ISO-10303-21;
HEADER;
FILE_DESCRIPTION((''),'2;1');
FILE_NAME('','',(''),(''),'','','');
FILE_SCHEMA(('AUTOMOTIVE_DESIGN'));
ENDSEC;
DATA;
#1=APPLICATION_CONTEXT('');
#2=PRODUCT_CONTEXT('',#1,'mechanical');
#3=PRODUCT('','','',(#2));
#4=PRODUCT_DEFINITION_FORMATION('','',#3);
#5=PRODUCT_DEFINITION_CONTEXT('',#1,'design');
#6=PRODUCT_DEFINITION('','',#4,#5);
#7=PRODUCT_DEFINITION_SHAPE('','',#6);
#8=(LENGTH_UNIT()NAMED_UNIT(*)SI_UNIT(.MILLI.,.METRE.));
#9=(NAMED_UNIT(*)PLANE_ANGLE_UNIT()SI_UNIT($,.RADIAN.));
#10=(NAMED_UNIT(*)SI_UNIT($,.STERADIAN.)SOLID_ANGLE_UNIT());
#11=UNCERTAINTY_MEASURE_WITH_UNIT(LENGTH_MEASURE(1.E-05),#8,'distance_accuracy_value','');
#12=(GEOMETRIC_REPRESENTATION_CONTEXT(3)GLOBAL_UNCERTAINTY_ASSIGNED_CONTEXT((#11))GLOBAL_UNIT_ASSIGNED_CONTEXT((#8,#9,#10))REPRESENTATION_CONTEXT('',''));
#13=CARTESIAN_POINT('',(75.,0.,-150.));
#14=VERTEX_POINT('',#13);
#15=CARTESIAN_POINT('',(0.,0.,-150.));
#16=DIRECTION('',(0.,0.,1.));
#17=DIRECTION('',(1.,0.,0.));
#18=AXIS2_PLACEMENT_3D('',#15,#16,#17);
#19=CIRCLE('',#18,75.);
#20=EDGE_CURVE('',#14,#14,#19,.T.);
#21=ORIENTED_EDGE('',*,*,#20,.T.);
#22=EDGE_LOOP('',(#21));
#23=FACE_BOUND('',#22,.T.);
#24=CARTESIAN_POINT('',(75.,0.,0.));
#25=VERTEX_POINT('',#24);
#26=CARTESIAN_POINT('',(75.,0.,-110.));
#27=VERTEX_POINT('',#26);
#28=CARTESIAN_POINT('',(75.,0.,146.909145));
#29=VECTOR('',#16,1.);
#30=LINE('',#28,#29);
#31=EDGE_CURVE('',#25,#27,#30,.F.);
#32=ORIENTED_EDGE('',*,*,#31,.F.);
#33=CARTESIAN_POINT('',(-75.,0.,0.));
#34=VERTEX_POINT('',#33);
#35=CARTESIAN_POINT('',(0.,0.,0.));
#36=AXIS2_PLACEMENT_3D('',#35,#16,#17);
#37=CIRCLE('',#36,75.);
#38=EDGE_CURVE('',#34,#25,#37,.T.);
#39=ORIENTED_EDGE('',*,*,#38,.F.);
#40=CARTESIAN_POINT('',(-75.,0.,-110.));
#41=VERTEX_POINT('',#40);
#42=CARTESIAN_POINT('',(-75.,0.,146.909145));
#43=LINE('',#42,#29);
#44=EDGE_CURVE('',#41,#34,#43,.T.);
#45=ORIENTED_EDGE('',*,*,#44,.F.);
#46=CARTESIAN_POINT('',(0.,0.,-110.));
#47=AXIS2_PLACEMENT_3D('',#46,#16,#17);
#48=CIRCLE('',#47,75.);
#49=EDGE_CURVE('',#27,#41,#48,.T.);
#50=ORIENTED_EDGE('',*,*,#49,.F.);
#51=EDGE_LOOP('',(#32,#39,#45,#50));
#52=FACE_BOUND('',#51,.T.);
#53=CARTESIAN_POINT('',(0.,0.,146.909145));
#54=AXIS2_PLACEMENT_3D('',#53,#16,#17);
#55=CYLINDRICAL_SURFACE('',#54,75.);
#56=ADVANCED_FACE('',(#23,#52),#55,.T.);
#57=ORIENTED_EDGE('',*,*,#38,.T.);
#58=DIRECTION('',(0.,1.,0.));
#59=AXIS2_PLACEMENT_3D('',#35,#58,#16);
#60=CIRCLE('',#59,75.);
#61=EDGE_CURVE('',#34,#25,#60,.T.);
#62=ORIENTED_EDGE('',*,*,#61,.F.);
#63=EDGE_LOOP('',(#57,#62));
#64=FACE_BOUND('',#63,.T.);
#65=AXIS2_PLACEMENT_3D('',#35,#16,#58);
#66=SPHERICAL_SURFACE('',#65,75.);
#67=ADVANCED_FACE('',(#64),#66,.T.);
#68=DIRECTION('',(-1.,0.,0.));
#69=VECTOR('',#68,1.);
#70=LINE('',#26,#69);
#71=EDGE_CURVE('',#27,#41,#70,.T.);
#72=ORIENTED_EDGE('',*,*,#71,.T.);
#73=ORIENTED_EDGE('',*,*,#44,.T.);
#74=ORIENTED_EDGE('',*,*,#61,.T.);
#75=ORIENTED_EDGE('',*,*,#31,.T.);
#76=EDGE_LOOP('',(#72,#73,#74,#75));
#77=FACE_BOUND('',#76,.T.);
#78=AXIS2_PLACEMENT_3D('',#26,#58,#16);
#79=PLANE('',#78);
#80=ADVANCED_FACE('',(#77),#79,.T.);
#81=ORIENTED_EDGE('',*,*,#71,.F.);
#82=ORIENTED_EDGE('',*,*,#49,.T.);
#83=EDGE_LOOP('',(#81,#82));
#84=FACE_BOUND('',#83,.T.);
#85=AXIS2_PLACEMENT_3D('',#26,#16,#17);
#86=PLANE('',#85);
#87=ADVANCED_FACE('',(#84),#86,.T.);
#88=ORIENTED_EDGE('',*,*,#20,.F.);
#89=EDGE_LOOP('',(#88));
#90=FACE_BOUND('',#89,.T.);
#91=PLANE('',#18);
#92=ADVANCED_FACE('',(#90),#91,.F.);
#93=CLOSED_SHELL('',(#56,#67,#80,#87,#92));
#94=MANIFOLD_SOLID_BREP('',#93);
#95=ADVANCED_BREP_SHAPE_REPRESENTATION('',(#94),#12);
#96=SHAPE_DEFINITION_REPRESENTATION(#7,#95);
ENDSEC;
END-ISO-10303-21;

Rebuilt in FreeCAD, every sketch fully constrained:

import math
import FreeCAD as App
import Part
import Sketcher

V = App.Vector

doc = App.newDocument("Part")
params = doc.addObject("Spreadsheet::Sheet", "Params")
for row, (alias, value) in enumerate([
    ("sketch1_radius", "75 mm"),
    ("sketch1_height", "225 mm"),
    ("revolution_angle", "360 deg"),
    ("sketch2_radius", "75 mm"),
    ("sketch2_height", "110 mm"),
], start=1):
    params.set(f"A{row}", alias)
    params.set(f"B{row}", "=" + value)
    params.setAlias(f"B{row}", alias)

body = doc.addObject("PartDesign::Body", "Body")

sketch1 = body.newObject("Sketcher::SketchObject", "Sketch")
sketch1.AttachmentSupport = (doc.getObject("YZ_Plane"), [""])
sketch1.MapMode = "FlatFace"
sketch1.addGeometry(Part.LineSegment(V(0, 75, 0), V(0, -150, 0)), False)
sketch1.addGeometry(Part.LineSegment(V(0, -150, 0), V(75, -150, 0)), False)
sketch1.addGeometry(Part.LineSegment(V(75, -150, 0), V(75, 0, 0)), False)
sketch1.addGeometry(Part.ArcOfCircle(Part.Circle(V(0, 0, 0), V(0, 0, 1), 75), math.radians(0), math.radians(90)), False)
sketch1.addConstraint(Sketcher.Constraint("Coincident", 0, 2, 1, 1))
sketch1.addConstraint(Sketcher.Constraint("Coincident", 1, 2, 2, 1))
sketch1.addConstraint(Sketcher.Constraint("Tangent", 2, 2, 3, 1))
sketch1.addConstraint(Sketcher.Constraint("Coincident", 3, 2, 0, 1))
sketch1.addConstraint(Sketcher.Constraint("Vertical", 0))
sketch1.addConstraint(Sketcher.Constraint("Horizontal", 1))
sketch1.addConstraint(Sketcher.Constraint("Vertical", 2))
sketch1.addConstraint(Sketcher.Constraint("Coincident", 3, 3, -1, 1))
sketch1.addConstraint(Sketcher.Constraint("PointOnObject", 0, 2, -2))
sketch1.addConstraint(Sketcher.Constraint("Radius", 3, 75.0))
sketch1.addConstraint(Sketcher.Constraint("DistanceY", 0, 2, 0, 1, 225.0))
sketch1.setExpression("Constraints[9]", "Params.sketch1_radius")
sketch1.setExpression("Constraints[10]", "Params.sketch1_height")
revolution = body.newObject("PartDesign::Revolution", "Revolution")
revolution.Profile = sketch1
revolution.ReferenceAxis = (sketch1, ["V_Axis"])
revolution.setExpression("Angle", "Params.revolution_angle")

sketch2 = body.newObject("Sketcher::SketchObject", "Sketch001")
sketch2.AttachmentSupport = (doc.getObject("YZ_Plane"), [""])
sketch2.MapMode = "FlatFace"
sketch2.addGeometry(Part.LineSegment(V(0, -110, 0), V(75, -110, 0)), False)
sketch2.addGeometry(Part.LineSegment(V(75, -110, 0), V(75, 0, 0)), False)
sketch2.addGeometry(Part.ArcOfCircle(Part.Circle(V(0, 0, 0), V(0, 0, 1), 75), math.radians(0), math.radians(90)), False)
sketch2.addGeometry(Part.LineSegment(V(0, 75, 0), V(0, -110, 0)), False)
sketch2.addConstraint(Sketcher.Constraint("Coincident", 0, 2, 1, 1))
sketch2.addConstraint(Sketcher.Constraint("Tangent", 1, 2, 2, 1))
sketch2.addConstraint(Sketcher.Constraint("Coincident", 2, 2, 3, 1))
sketch2.addConstraint(Sketcher.Constraint("Coincident", 3, 2, 0, 1))
sketch2.addConstraint(Sketcher.Constraint("Horizontal", 0))
sketch2.addConstraint(Sketcher.Constraint("Vertical", 1))
sketch2.addConstraint(Sketcher.Constraint("Vertical", 3))
sketch2.addConstraint(Sketcher.Constraint("Coincident", 2, 3, -1, 1))
sketch2.addConstraint(Sketcher.Constraint("PointOnObject", 2, 2, -2))
sketch2.addConstraint(Sketcher.Constraint("Radius", 2, 75.0))
sketch2.addConstraint(Sketcher.Constraint("DistanceY", 1, 1, 1, 2, 110.0))
sketch2.setExpression("Constraints[9]", "Params.sketch2_radius")
sketch2.setExpression("Constraints[10]", "Params.sketch2_height")
pocket1 = body.newObject("PartDesign::Pocket", "Pocket")
pocket1.Profile = sketch2
pocket1.Type = "ThroughAll"
pocket1.Midplane = True

doc.recompute()
